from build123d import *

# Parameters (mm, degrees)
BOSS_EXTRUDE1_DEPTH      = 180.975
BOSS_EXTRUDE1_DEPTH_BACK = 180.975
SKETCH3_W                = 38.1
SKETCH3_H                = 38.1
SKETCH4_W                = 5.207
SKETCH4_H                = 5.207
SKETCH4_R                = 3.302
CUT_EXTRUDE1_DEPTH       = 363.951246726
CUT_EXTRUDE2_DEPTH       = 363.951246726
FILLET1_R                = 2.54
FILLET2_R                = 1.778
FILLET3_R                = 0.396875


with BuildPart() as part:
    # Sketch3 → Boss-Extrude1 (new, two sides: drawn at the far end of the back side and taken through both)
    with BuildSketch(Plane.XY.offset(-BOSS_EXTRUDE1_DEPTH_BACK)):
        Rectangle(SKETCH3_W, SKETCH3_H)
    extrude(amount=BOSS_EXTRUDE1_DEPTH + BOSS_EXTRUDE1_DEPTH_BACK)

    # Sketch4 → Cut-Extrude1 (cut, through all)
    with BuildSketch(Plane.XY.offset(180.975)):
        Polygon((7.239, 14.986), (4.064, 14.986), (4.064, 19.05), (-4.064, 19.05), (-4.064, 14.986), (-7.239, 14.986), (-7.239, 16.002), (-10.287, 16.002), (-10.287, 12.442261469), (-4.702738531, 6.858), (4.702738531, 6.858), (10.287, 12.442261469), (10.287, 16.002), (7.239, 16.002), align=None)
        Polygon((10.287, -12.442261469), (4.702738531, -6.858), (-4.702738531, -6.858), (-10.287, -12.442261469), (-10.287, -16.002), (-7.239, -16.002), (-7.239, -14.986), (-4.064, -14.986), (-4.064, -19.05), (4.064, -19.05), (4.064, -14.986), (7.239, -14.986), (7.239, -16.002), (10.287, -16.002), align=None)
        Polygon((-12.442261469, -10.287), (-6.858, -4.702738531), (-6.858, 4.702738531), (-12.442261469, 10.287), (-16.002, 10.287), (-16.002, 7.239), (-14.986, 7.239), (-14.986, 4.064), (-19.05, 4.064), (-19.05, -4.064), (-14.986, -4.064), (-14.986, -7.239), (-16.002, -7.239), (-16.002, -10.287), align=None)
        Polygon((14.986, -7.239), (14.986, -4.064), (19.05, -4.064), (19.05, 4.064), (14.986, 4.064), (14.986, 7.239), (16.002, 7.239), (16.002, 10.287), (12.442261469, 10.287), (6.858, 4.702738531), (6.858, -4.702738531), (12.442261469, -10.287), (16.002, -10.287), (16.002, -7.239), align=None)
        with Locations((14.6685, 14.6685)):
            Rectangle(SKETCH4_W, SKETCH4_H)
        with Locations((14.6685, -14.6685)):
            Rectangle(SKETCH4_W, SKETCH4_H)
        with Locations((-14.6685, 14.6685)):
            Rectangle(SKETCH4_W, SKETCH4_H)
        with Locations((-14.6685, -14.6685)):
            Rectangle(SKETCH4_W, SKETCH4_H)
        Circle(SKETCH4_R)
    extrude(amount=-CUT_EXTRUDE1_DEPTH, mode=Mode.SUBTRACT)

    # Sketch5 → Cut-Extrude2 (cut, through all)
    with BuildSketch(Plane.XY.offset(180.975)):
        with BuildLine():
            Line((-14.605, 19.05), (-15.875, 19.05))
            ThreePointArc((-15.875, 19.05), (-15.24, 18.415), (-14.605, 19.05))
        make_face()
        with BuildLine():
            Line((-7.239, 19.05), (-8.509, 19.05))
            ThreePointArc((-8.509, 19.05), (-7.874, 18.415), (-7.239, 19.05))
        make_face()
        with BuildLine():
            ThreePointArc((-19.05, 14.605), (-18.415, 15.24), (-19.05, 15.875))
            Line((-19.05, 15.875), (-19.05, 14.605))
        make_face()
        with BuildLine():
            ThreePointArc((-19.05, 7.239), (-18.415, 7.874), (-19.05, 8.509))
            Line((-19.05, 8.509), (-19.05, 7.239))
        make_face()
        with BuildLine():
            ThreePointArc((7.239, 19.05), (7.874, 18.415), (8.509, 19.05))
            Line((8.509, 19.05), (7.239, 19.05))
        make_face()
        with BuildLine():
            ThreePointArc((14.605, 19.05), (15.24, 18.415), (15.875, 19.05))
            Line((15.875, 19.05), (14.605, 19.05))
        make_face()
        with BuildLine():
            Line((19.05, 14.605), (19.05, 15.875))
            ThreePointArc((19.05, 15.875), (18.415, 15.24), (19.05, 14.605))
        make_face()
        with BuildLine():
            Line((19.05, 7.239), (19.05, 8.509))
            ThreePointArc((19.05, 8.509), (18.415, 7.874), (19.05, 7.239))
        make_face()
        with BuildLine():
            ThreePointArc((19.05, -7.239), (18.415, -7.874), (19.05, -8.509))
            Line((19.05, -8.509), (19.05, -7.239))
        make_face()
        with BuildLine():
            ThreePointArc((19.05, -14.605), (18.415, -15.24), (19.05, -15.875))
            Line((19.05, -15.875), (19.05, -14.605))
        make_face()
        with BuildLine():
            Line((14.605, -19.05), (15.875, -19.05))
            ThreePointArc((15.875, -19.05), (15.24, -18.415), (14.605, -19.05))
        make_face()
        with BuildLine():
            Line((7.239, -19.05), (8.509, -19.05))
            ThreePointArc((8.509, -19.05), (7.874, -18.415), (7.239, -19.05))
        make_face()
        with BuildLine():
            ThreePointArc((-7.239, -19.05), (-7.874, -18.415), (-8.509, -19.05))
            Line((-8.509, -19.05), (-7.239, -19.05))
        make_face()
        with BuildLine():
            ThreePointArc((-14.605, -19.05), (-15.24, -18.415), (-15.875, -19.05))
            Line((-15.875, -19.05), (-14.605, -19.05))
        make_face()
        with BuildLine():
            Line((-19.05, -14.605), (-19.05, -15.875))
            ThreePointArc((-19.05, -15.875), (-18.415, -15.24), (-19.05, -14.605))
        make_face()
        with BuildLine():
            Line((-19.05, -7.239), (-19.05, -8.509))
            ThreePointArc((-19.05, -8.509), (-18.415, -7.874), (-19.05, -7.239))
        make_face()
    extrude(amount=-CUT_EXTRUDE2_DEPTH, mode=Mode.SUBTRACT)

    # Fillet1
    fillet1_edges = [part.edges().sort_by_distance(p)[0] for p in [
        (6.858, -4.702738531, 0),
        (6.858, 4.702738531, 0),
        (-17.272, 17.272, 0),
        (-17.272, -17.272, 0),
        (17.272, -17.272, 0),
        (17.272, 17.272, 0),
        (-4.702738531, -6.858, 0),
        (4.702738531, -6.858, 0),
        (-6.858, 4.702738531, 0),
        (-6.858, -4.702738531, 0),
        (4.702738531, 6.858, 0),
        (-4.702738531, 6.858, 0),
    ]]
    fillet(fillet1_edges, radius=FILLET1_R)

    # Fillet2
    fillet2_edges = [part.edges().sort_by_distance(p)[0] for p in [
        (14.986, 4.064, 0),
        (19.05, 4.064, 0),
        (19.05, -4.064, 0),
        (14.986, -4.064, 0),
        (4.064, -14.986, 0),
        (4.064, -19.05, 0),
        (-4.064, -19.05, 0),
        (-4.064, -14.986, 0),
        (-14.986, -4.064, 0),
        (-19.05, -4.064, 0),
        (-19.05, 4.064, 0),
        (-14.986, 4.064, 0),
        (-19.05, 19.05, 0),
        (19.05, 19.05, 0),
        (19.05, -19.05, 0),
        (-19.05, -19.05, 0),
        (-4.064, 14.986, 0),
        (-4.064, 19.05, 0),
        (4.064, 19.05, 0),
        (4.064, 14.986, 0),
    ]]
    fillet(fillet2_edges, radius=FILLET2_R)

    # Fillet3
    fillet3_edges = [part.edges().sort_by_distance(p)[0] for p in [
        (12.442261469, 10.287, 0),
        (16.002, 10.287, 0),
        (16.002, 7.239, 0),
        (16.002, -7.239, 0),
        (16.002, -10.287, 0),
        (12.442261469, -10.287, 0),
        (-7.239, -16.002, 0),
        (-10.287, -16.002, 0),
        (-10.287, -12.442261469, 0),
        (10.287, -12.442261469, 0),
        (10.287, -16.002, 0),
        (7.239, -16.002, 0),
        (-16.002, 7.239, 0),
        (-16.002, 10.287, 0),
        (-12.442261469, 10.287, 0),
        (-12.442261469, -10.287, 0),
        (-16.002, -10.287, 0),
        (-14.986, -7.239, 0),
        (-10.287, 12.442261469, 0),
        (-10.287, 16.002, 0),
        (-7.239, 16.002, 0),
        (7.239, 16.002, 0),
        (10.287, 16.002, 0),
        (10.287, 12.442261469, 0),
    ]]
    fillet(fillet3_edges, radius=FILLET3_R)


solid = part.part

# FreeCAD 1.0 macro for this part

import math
import FreeCAD as App
import Part
import Sketcher
from FreeCAD import Vector
Q = App.Units.Quantity


def edges_at(feature, points):
    """Names of the edges that pass closest to the given points."""
    edges = feature.Shape.Edges
    near = lambda p: min(range(len(edges)), key=lambda i: edges[i].distToShape(Part.Vertex(*p))[0])
    return sorted({f"Edge{near(p) + 1}" for p in points})


def add_polygon(sketch, points):
    """Adds a closed chain of lines whose ends are joined by coincident constraints."""
    first, n = sketch.GeometryCount, len(points)
    for a, b in zip(points, points[1:] + points[:1]):
        sketch.addGeometry(Part.LineSegment(App.Vector(*a, 0), App.Vector(*b, 0)), False)
    for i in range(n):
        sketch.addConstraint(Sketcher.Constraint("Coincident", first + i, 2, first + (i + 1) % n, 1))

doc = App.newDocument("Part")
body = doc.addObject("PartDesign::Body", "Body")

sketch1 = doc.addObject("Sketcher::SketchObject", "Sketch")
body.addObject(sketch1)
sketch1.AttachmentSupport = (doc.XY_Plane, [""])
sketch1.MapMode = "FlatFace"
add_polygon(sketch1, [(-19, 19), (-19, -19), (19, -19), (19, 19)])
sketch1.addConstraint(Sketcher.Constraint("Vertical", 0))
sketch1.addConstraint(Sketcher.Constraint("Horizontal", 1))
sketch1.addConstraint(Sketcher.Constraint("Vertical", 2))
sketch1.addConstraint(Sketcher.Constraint("Horizontal", 3))
sketch1.addConstraint(Sketcher.Constraint("Symmetric", 0, 2, 2, 2, -1, 1))
sketch1.addConstraint(Sketcher.Constraint("Equal", 3, 0))
sketch1.addConstraint(Sketcher.Constraint("DistanceX", 1, 1, 1, 2, Q("1.5 in")))
pad1 = doc.addObject("PartDesign::Pad", "Pad")
body.addObject(pad1)
pad1.Profile = sketch1
pad1.Type = "TwoLengths"
pad1.Length = Q("7.125 in")
pad1.Length2 = Q("7.125 in")

sketch2 = doc.addObject("Sketcher::SketchObject", "Sketch001")
body.addObject(sketch2)
sketch2.AttachmentSupport = (doc.XY_Plane, [""])
sketch2.MapMode = "FlatFace"
sketch2.AttachmentOffset = App.Placement(Vector(0, 0, 7.125 * 25.4), App.Rotation())
add_polygon(sketch2, [(7.2, 15), (4.1, 15), (4.1, 19.1), (-4.1, 19.1), (-4.1, 15), (-7.2, 15), (-7.2, 16), (-10.3, 16), (-10.3, 12.4), (-4.7, 6.9), (4.7, 6.9), (10.3, 12.4), (10.3, 16), (7.2, 16)])
add_polygon(sketch2, [(10.3, -12.4), (4.7, -6.9), (-4.7, -6.9), (-10.3, -12.4), (-10.3, -16), (-7.2, -16), (-7.2, -15), (-4.1, -15), (-4.1, -19.1), (4.1, -19.1), (4.1, -15), (7.2, -15), (7.2, -16), (10.3, -16)])
add_polygon(sketch2, [(-12.4, -10.3), (-6.9, -4.7), (-6.9, 4.7), (-12.4, 10.3), (-16, 10.3), (-16, 7.2), (-15, 7.2), (-15, 4.1), (-19.1, 4.1), (-19.1, -4.1), (-15, -4.1), (-15, -7.2), (-16, -7.2), (-16, -10.3)])
add_polygon(sketch2, [(15, -7.2), (15, -4.1), (19.1, -4.1), (19.1, 4.1), (15, 4.1), (15, 7.2), (16, 7.2), (16, 10.3), (12.4, 10.3), (6.9, 4.7), (6.9, -4.7), (12.4, -10.3), (16, -10.3), (16, -7.2)])
add_polygon(sketch2, [(12.1, 17.3), (12.1, 12.1), (17.3, 12.1), (17.3, 17.3)])
add_polygon(sketch2, [(12.1, -12.1), (12.1, -17.3), (17.3, -17.3), (17.3, -12.1)])
add_polygon(sketch2, [(-17.3, 17.3), (-17.3, 12.1), (-12.1, 12.1), (-12.1, 17.3)])
add_polygon(sketch2, [(-17.3, -12.1), (-17.3, -17.3), (-12.1, -17.3), (-12.1, -12.1)])
sketch2.addGeometry(Part.Circle(Vector(0, 0, 0), Vector(0, 0, 1), 3.3), False)
sketch2.addConstraint(Sketcher.Constraint("Horizontal", 0))
sketch2.addConstraint(Sketcher.Constraint("Vertical", 1))
sketch2.addConstraint(Sketcher.Constraint("Horizontal", 2))
sketch2.addConstraint(Sketcher.Constraint("Vertical", 3))
sketch2.addConstraint(Sketcher.Constraint("Horizontal", 4))
sketch2.addConstraint(Sketcher.Constraint("Vertical", 5))
sketch2.addConstraint(Sketcher.Constraint("Horizontal", 6))
sketch2.addConstraint(Sketcher.Constraint("Vertical", 7))
sketch2.addConstraint(Sketcher.Constraint("Horizontal", 9))
sketch2.addConstraint(Sketcher.Constraint("Vertical", 11))
sketch2.addConstraint(Sketcher.Constraint("Horizontal", 12))
sketch2.addConstraint(Sketcher.Constraint("Vertical", 13))
sketch2.addConstraint(Sketcher.Constraint("Horizontal", 15))
sketch2.addConstraint(Sketcher.Constraint("Vertical", 17))
sketch2.addConstraint(Sketcher.Constraint("Horizontal", 18))
sketch2.addConstraint(Sketcher.Constraint("Vertical", 19))
sketch2.addConstraint(Sketcher.Constraint("Horizontal", 20))
sketch2.addConstraint(Sketcher.Constraint("Vertical", 21))
sketch2.addConstraint(Sketcher.Constraint("Horizontal", 22))
sketch2.addConstraint(Sketcher.Constraint("Vertical", 23))
sketch2.addConstraint(Sketcher.Constraint("Horizontal", 24))
sketch2.addConstraint(Sketcher.Constraint("Vertical", 25))
sketch2.addConstraint(Sketcher.Constraint("Horizontal", 26))
sketch2.addConstraint(Sketcher.Constraint("Vertical", 27))
sketch2.addConstraint(Sketcher.Constraint("Vertical", 29))
sketch2.addConstraint(Sketcher.Constraint("Horizontal", 31))
sketch2.addConstraint(Sketcher.Constraint("Vertical", 32))
sketch2.addConstraint(Sketcher.Constraint("Horizontal", 33))
sketch2.addConstraint(Sketcher.Constraint("Vertical", 34))
sketch2.addConstraint(Sketcher.Constraint("Horizontal", 35))
sketch2.addConstraint(Sketcher.Constraint("Vertical", 36))
sketch2.addConstraint(Sketcher.Constraint("Horizontal", 37))
sketch2.addConstraint(Sketcher.Constraint("Vertical", 38))
sketch2.addConstraint(Sketcher.Constraint("Horizontal", 39))
sketch2.addConstraint(Sketcher.Constraint("Vertical", 40))
sketch2.addConstraint(Sketcher.Constraint("Horizontal", 41))
sketch2.addConstraint(Sketcher.Constraint("Vertical", 42))
sketch2.addConstraint(Sketcher.Constraint("Horizontal", 43))
sketch2.addConstraint(Sketcher.Constraint("Vertical", 44))
sketch2.addConstraint(Sketcher.Constraint("Horizontal", 45))
sketch2.addConstraint(Sketcher.Constraint("Vertical", 46))
sketch2.addConstraint(Sketcher.Constraint("Horizontal", 47))
sketch2.addConstraint(Sketcher.Constraint("Vertical", 48))
sketch2.addConstraint(Sketcher.Constraint("Horizontal", 49))
sketch2.addConstraint(Sketcher.Constraint("Vertical", 51))
sketch2.addConstraint(Sketcher.Constraint("Horizontal", 53))
sketch2.addConstraint(Sketcher.Constraint("Vertical", 54))
sketch2.addConstraint(Sketcher.Constraint("Horizontal", 55))
sketch2.addConstraint(Sketcher.Constraint("Vertical", 56))
sketch2.addConstraint(Sketcher.Constraint("Horizontal", 57))
sketch2.addConstraint(Sketcher.Constraint("Vertical", 58))
sketch2.addConstraint(Sketcher.Constraint("Horizontal", 59))
sketch2.addConstraint(Sketcher.Constraint("Vertical", 60))
sketch2.addConstraint(Sketcher.Constraint("Horizontal", 61))
sketch2.addConstraint(Sketcher.Constraint("Vertical", 62))
sketch2.addConstraint(Sketcher.Constraint("Horizontal", 63))
sketch2.addConstraint(Sketcher.Constraint("Vertical", 64))
sketch2.addConstraint(Sketcher.Constraint("Horizontal", 65))
sketch2.addConstraint(Sketcher.Constraint("Vertical", 66))
sketch2.addConstraint(Sketcher.Constraint("Horizontal", 67))
sketch2.addConstraint(Sketcher.Constraint("Vertical", 68))
sketch2.addConstraint(Sketcher.Constraint("Horizontal", 69))
sketch2.addConstraint(Sketcher.Constraint("Vertical", 70))
sketch2.addConstraint(Sketcher.Constraint("Horizontal", 71))
sketch2.addConstraint(Sketcher.Constraint("Coincident", 72, 3, -1, 1))
sketch2.addConstraint(Sketcher.Constraint("Symmetric", 8, 2, 14, 2, -1, 1))
sketch2.addConstraint(Sketcher.Constraint("Symmetric", 10, 2, 16, 2, -1, 1))
sketch2.addConstraint(Sketcher.Constraint("Symmetric", 12, 2, 18, 2, -1, 1))
sketch2.addConstraint(Sketcher.Constraint("Symmetric", 0, 2, 20, 2, -1, 1))
sketch2.addConstraint(Sketcher.Constraint("Symmetric", 2, 2, 22, 2, -1, 1))
sketch2.addConstraint(Sketcher.Constraint("Symmetric", 4, 2, 24, 2, -1, 1))
sketch2.addConstraint(Sketcher.Constraint("Symmetric", 6, 2, 26, 2, -1, 1))
sketch2.addConstraint(Sketcher.Constraint("Symmetric", 34, 2, 42, 2, -1, 1))
sketch2.addConstraint(Sketcher.Constraint("Symmetric", 36, 2, 44, 2, -1, 1))
sketch2.addConstraint(Sketcher.Constraint("Symmetric", 38, 2, 46, 2, -1, 1))
sketch2.addConstraint(Sketcher.Constraint("Symmetric", 40, 2, 48, 2, -1, 1))
sketch2.addConstraint(Sketcher.Constraint("Symmetric", 28, 2, 50, 2, -1, 1))
sketch2.addConstraint(Sketcher.Constraint("Symmetric", 30, 2, 52, 2, -1, 1))
sketch2.addConstraint(Sketcher.Constraint("Symmetric", 32, 2, 54, 2, -1, 1))
sketch2.addConstraint(Sketcher.Constraint("Symmetric", 62, 2, 64, 2, -1, 1))
sketch2.addConstraint(Sketcher.Constraint("Symmetric", 60, 2, 66, 2, -1, 1))
sketch2.addConstraint(Sketcher.Constraint("Symmetric", 58, 2, 68, 2, -1, 1))
sketch2.addConstraint(Sketcher.Constraint("Symmetric", 56, 2, 70, 2, -1, 1))
sketch2.addConstraint(Sketcher.Constraint("Symmetric", 0, 2, 3, 2, -2))
sketch2.addConstraint(Sketcher.Constraint("Symmetric", 7, 2, 10, 2, -2))
sketch2.addConstraint(Sketcher.Constraint("Symmetric", 5, 2, 12, 2, -2))
sketch2.addConstraint(Sketcher.Constraint("Symmetric", 37, 2, 42, 2, -2))
sketch2.addConstraint(Sketcher.Constraint("Symmetric", 32, 2, 47, 2, -2))
sketch2.addConstraint(Sketcher.Constraint("Symmetric", 30, 2, 49, 2, -2))
sketch2.addConstraint(Sketcher.Constraint("Symmetric", 57, 2, 64, 2, -2))
sketch2.addConstraint(Sketcher.Constraint("Symmetric", 59, 2, 66, 2, -2))
sketch2.addConstraint(Sketcher.Constraint("Perpendicular", 8, 10))
sketch2.addConstraint(Sketcher.Constraint("Perpendicular", 10, 14))
sketch2.addConstraint(Sketcher.Constraint("Perpendicular", 14, 16))
sketch2.addConstraint(Sketcher.Constraint("Parallel", 16, 28))
sketch2.addConstraint(Sketcher.Constraint("Perpendicular", 28, 30))
sketch2.addConstraint(Sketcher.Constraint("Perpendicular", 30, 50))
sketch2.addConstraint(Sketcher.Constraint("Perpendicular", 50, 52))
sketch2.addConstraint(Sketcher.Constraint("Horizontal", 29, 2, 50, 2))
sketch2.addConstraint(Sketcher.Constraint("Equal", 45, 1))
sketch2.addConstraint(Sketcher.Constraint("Equal", 55, 5))
sketch2.addConstraint(Sketcher.Constraint("Equal", 53, 7))
sketch2.addConstraint(Sketcher.Constraint("Equal", 15, 29))
sketch2.addConstraint(Sketcher.Constraint("Equal", 26, 32))
sketch2.addConstraint(Sketcher.Constraint("Equal", 24, 34))
sketch2.addConstraint(Sketcher.Constraint("Equal", 22, 36))
sketch2.addConstraint(Sketcher.Constraint("Equal", 71, 56))
sketch2.addConstraint(Sketcher.Constraint("Diameter", 72, Q("0.26 in")))
sketch2.addConstraint(Sketcher.Constraint("DistanceX", 2, 2, 2, 1, Q("0.32 in")))
sketch2.addConstraint(Sketcher.Constraint("DistanceX", 6, 2, 6, 1, Q("0.12 in")))
sketch2.addConstraint(Sketcher.Constraint("DistanceX", 33, 1, 33, 2, Q("0.04 in")))
sketch2.addConstraint(Sketcher.Constraint("DistanceX", 35, 2, 35, 1, Q("0.16 in")))
sketch2.addConstraint(Sketcher.Constraint("DistanceX", 0, 2, 0, 1, Q("0.125 in")))
sketch2.addConstraint(Sketcher.Constraint("DistanceX", 57, 1, 57, 2, Q("0.205 in")))
sketch2.addConstraint(Sketcher.Constraint("DistanceY", -1, 1, 0, 2, Q("0.59 in")))
sketch2.addConstraint(Sketcher.Constraint("DistanceY", -1, 1, 8, 2, Q("0.27 in")))
sketch2.addConstraint(Sketcher.Constraint("DistanceX", 28, 2, -1, 1, Q("0.27 in")))
sketch2.addConstraint(Sketcher.Constraint("DistanceX", -1, 1, 57, 2, Q("0.68 in")))
sketch2.addConstraint(Sketcher.Constraint("DistanceY", -1, 1, 58, 2, Q("0.68 in")))
sketch2.addConstraint(Sketcher.Constraint("DistanceX", 31, 2, 31, 1, 3.559739))
pocket1 = doc.addObject("PartDesign::Pocket", "Pocket")
body.addObject(pocket1)
pocket1.Profile = sketch2
pocket1.Type = "ThroughAll"

sketch3 = doc.addObject("Sketcher::SketchObject", "Sketch002")
body.addObject(sketch3)
sketch3.AttachmentSupport = (doc.XY_Plane, [""])
sketch3.MapMode = "FlatFace"
sketch3.AttachmentOffset = App.Placement(Vector(0, 0, 7.125 * 25.4), App.Rotation())
sketch3.addGeometry(Part.LineSegment(Vector(-14.6, 19.1, 0), Vector(-15.9, 19.1, 0)), False)
sketch3.addGeometry(Part.ArcOfCircle(Part.Circle(Vector(-15.2, 19.1, 0), Vector(0, 0, 1), 0.6), math.radians(180), math.radians(360)), False)
sketch3.addGeometry(Part.LineSegment(Vector(-7.2, 19.1, 0), Vector(-8.5, 19.1, 0)), False)
sketch3.addGeometry(Part.ArcOfCircle(Part.Circle(Vector(-7.9, 19.1, 0), Vector(0, 0, 1), 0.6), math.radians(180), math.radians(360)), False)
sketch3.addGeometry(Part.ArcOfCircle(Part.Circle(Vector(-19.1, 15.2, 0), Vector(0, 0, 1), 0.6), math.radians(-90), math.radians(90)), False)
sketch3.addGeometry(Part.LineSegment(Vector(-19.1, 15.9, 0), Vector(-19.1, 14.6, 0)), False)
sketch3.addGeometry(Part.ArcOfCircle(Part.Circle(Vector(-19.1, 7.9, 0), Vector(0, 0, 1), 0.6), math.radians(-90), math.radians(90)), False)
sketch3.addGeometry(Part.LineSegment(Vector(-19.1, 8.5, 0), Vector(-19.1, 7.2, 0)), False)
sketch3.addGeometry(Part.ArcOfCircle(Part.Circle(Vector(7.9, 19.1, 0), Vector(0, 0, 1), 0.6), math.radians(180), math.radians(360)), False)
sketch3.addGeometry(Part.LineSegment(Vector(8.5, 19.1, 0), Vector(7.2, 19.1, 0)), False)
sketch3.addGeometry(Part.ArcOfCircle(Part.Circle(Vector(15.2, 19.1, 0), Vector(0, 0, 1), 0.6), math.radians(180), math.radians(360)), False)
sketch3.addGeometry(Part.LineSegment(Vector(15.9, 19.1, 0), Vector(14.6, 19.1, 0)), False)
sketch3.addGeometry(Part.LineSegment(Vector(19.1, 14.6, 0), Vector(19.1, 15.9, 0)), False)
sketch3.addGeometry(Part.ArcOfCircle(Part.Circle(Vector(19.1, 15.2, 0), Vector(0, 0, 1), 0.6), math.radians(90), math.radians(270)), False)
sketch3.addGeometry(Part.LineSegment(Vector(19.1, 7.2, 0), Vector(19.1, 8.5, 0)), False)
sketch3.addGeometry(Part.ArcOfCircle(Part.Circle(Vector(19.1, 7.9, 0), Vector(0, 0, 1), 0.6), math.radians(90), math.radians(270)), False)
sketch3.addGeometry(Part.ArcOfCircle(Part.Circle(Vector(19.1, -7.9, 0), Vector(0, 0, 1), 0.6), math.radians(90), math.radians(270)), False)
sketch3.addGeometry(Part.LineSegment(Vector(19.1, -8.5, 0), Vector(19.1, -7.2, 0)), False)
sketch3.addGeometry(Part.ArcOfCircle(Part.Circle(Vector(19.1, -15.2, 0), Vector(0, 0, 1), 0.6), math.radians(90), math.radians(270)), False)
sketch3.addGeometry(Part.LineSegment(Vector(19.1, -15.9, 0), Vector(19.1, -14.6, 0)), False)
sketch3.addGeometry(Part.LineSegment(Vector(14.6, -19.1, 0), Vector(15.9, -19.1, 0)), False)
sketch3.addGeometry(Part.ArcOfCircle(Part.Circle(Vector(15.2, -19.1, 0), Vector(0, 0, 1), 0.6), math.radians(0), math.radians(180)), False)
sketch3.addGeometry(Part.LineSegment(Vector(7.2, -19.1, 0), Vector(8.5, -19.1, 0)), False)
sketch3.addGeometry(Part.ArcOfCircle(Part.Circle(Vector(7.9, -19.1, 0), Vector(0, 0, 1), 0.6), math.radians(0), math.radians(180)), False)
sketch3.addGeometry(Part.ArcOfCircle(Part.Circle(Vector(-7.9, -19.1, 0), Vector(0, 0, 1), 0.6), math.radians(0), math.radians(180)), False)
sketch3.addGeometry(Part.LineSegment(Vector(-8.5, -19.1, 0), Vector(-7.2, -19.1, 0)), False)
sketch3.addGeometry(Part.ArcOfCircle(Part.Circle(Vector(-15.2, -19.1, 0), Vector(0, 0, 1), 0.6), math.radians(0), math.radians(180)), False)
sketch3.addGeometry(Part.LineSegment(Vector(-15.9, -19.1, 0), Vector(-14.6, -19.1, 0)), False)
sketch3.addGeometry(Part.LineSegment(Vector(-19.1, -14.6, 0), Vector(-19.1, -15.9, 0)), False)
sketch3.addGeometry(Part.ArcOfCircle(Part.Circle(Vector(-19.1, -15.2, 0), Vector(0, 0, 1), 0.6), math.radians(-90), math.radians(90)), False)
sketch3.addGeometry(Part.LineSegment(Vector(-19.1, -7.2, 0), Vector(-19.1, -8.5, 0)), False)
sketch3.addGeometry(Part.ArcOfCircle(Part.Circle(Vector(-19.1, -7.9, 0), Vector(0, 0, 1), 0.6), math.radians(-90), math.radians(90)), False)
sketch3.addConstraint(Sketcher.Constraint("Coincident", 0, 1, 1, 2))
sketch3.addConstraint(Sketcher.Constraint("Coincident", 1, 1, 0, 2))
sketch3.addConstraint(Sketcher.Constraint("Coincident", 2, 1, 3, 2))
sketch3.addConstraint(Sketcher.Constraint("Coincident", 3, 1, 2, 2))
sketch3.addConstraint(Sketcher.Constraint("Coincident", 4, 1, 5, 2))
sketch3.addConstraint(Sketcher.Constraint("Coincident", 5, 1, 4, 2))
sketch3.addConstraint(Sketcher.Constraint("Coincident", 6, 1, 7, 2))
sketch3.addConstraint(Sketcher.Constraint("Coincident", 7, 1, 6, 2))
sketch3.addConstraint(Sketcher.Constraint("Coincident", 8, 1, 9, 2))
sketch3.addConstraint(Sketcher.Constraint("Coincident", 9, 1, 8, 2))
sketch3.addConstraint(Sketcher.Constraint("Coincident", 10, 1, 11, 2))
sketch3.addConstraint(Sketcher.Constraint("Coincident", 11, 1, 10, 2))
sketch3.addConstraint(Sketcher.Constraint("Coincident", 12, 1, 13, 2))
sketch3.addConstraint(Sketcher.Constraint("Coincident", 13, 1, 12, 2))
sketch3.addConstraint(Sketcher.Constraint("Coincident", 14, 1, 15, 2))
sketch3.addConstraint(Sketcher.Constraint("Coincident", 15, 1, 14, 2))
sketch3.addConstraint(Sketcher.Constraint("Coincident", 16, 1, 17, 2))
sketch3.addConstraint(Sketcher.Constraint("Coincident", 17, 1, 16, 2))
sketch3.addConstraint(Sketcher.Constraint("Coincident", 18, 1, 19, 2))
sketch3.addConstraint(Sketcher.Constraint("Coincident", 19, 1, 18, 2))
sketch3.addConstraint(Sketcher.Constraint("Coincident", 20, 1, 21, 2))
sketch3.addConstraint(Sketcher.Constraint("Coincident", 21, 1, 20, 2))
sketch3.addConstraint(Sketcher.Constraint("Coincident", 22, 1, 23, 2))
sketch3.addConstraint(Sketcher.Constraint("Coincident", 23, 1, 22, 2))
sketch3.addConstraint(Sketcher.Constraint("Coincident", 24, 1, 25, 2))
sketch3.addConstraint(Sketcher.Constraint("Coincident", 25, 1, 24, 2))
sketch3.addConstraint(Sketcher.Constraint("Coincident", 26, 1, 27, 2))
sketch3.addConstraint(Sketcher.Constraint("Coincident", 27, 1, 26, 2))
sketch3.addConstraint(Sketcher.Constraint("Coincident", 28, 1, 29, 2))
sketch3.addConstraint(Sketcher.Constraint("Coincident", 29, 1, 28, 2))
sketch3.addConstraint(Sketcher.Constraint("Coincident", 30, 1, 31, 2))
sketch3.addConstraint(Sketcher.Constraint("Coincident", 31, 1, 30, 2))
sketch3.addConstraint(Sketcher.Constraint("Horizontal", 0))
sketch3.addConstraint(Sketcher.Constraint("Horizontal", 2))
sketch3.addConstraint(Sketcher.Constraint("Vertical", 5))
sketch3.addConstraint(Sketcher.Constraint("Vertical", 7))
sketch3.addConstraint(Sketcher.Constraint("Horizontal", 9))
sketch3.addConstraint(Sketcher.Constraint("Horizontal", 11))
sketch3.addConstraint(Sketcher.Constraint("Vertical", 12))
sketch3.addConstraint(Sketcher.Constraint("Vertical", 14))
sketch3.addConstraint(Sketcher.Constraint("Vertical", 17))
sketch3.addConstraint(Sketcher.Constraint("Vertical", 19))
sketch3.addConstraint(Sketcher.Constraint("Horizontal", 20))
sketch3.addConstraint(Sketcher.Constraint("Horizontal", 22))
sketch3.addConstraint(Sketcher.Constraint("Horizontal", 25))
sketch3.addConstraint(Sketcher.Constraint("Horizontal", 27))
sketch3.addConstraint(Sketcher.Constraint("Vertical", 28))
sketch3.addConstraint(Sketcher.Constraint("Vertical", 30))
sketch3.addConstraint(Sketcher.Constraint("Equal", 1, 3))
sketch3.addConstraint(Sketcher.Constraint("Equal", 3, 4))
sketch3.addConstraint(Sketcher.Constraint("Equal", 4, 6))
sketch3.addConstraint(Sketcher.Constraint("Equal", 6, 8))
sketch3.addConstraint(Sketcher.Constraint("Equal", 8, 10))
sketch3.addConstraint(Sketcher.Constraint("Equal", 10, 13))
sketch3.addConstraint(Sketcher.Constraint("Equal", 13, 15))
sketch3.addConstraint(Sketcher.Constraint("Equal", 15, 16))
sketch3.addConstraint(Sketcher.Constraint("Equal", 16, 18))
sketch3.addConstraint(Sketcher.Constraint("Equal", 18, 21))
sketch3.addConstraint(Sketcher.Constraint("Equal", 21, 23))
sketch3.addConstraint(Sketcher.Constraint("Equal", 23, 24))
sketch3.addConstraint(Sketcher.Constraint("Equal", 24, 26))
sketch3.addConstraint(Sketcher.Constraint("Equal", 26, 29))
sketch3.addConstraint(Sketcher.Constraint("Equal", 29, 31))
sketch3.addConstraint(Sketcher.Constraint("Symmetric", 6, 3, 16, 3, -1, 1))
sketch3.addConstraint(Sketcher.Constraint("Symmetric", 4, 3, 18, 3, -1, 1))
sketch3.addConstraint(Sketcher.Constraint("Symmetric", 1, 3, 21, 3, -1, 1))
sketch3.addConstraint(Sketcher.Constraint("Symmetric", 3, 3, 23, 3, -1, 1))
sketch3.addConstraint(Sketcher.Constraint("Symmetric", 8, 3, 24, 3, -1, 1))
sketch3.addConstraint(Sketcher.Constraint("Symmetric", 10, 3, 26, 3, -1, 1))
sketch3.addConstraint(Sketcher.Constraint("Symmetric", 13, 3, 29, 3, -1, 1))
sketch3.addConstraint(Sketcher.Constraint("Symmetric", 15, 3, 31, 3, -1, 1))
sketch3.addConstraint(Sketcher.Constraint("Symmetric", 3, 3, 8, 3, -2))
sketch3.addConstraint(Sketcher.Constraint("Symmetric", 1, 3, 10, 3, -2))
sketch3.addConstraint(Sketcher.Constraint("Symmetric", 4, 3, 13, 3, -2))
sketch3.addConstraint(Sketcher.Constraint("Symmetric", 6, 3, 15, 3, -2))
sketch3.addConstraint(Sketcher.Constraint("Horizontal", 1, 3, 3, 3))
sketch3.addConstraint(Sketcher.Constraint("Horizontal", 10, 3, 0, 1))
sketch3.addConstraint(Sketcher.Constraint("Horizontal", 1, 1, 2, 1))
sketch3.addConstraint(Sketcher.Constraint("Horizontal", 3, 1, 8, 1))
sketch3.addConstraint(Sketcher.Constraint("Horizontal", 9, 1, 10, 1))
sketch3.addConstraint(Sketcher.Constraint("Horizontal", 26, 3, 20, 1))
sketch3.addConstraint(Sketcher.Constraint("Horizontal", 21, 1, 22, 1))
sketch3.addConstraint(Sketcher.Constraint("Horizontal", 23, 1, 24, 1))
sketch3.addConstraint(Sketcher.Constraint("Horizontal", 25, 1, 26, 1))
sketch3.addConstraint(Sketcher.Constraint("Vertical", 4, 3, 6, 3))
sketch3.addConstraint(Sketcher.Constraint("Vertical", 31, 3, 4, 1))
sketch3.addConstraint(Sketcher.Constraint("Vertical", 5, 1, 6, 1))
sketch3.addConstraint(Sketcher.Constraint("Vertical", 18, 3, 12, 1))
sketch3.addConstraint(Sketcher.Constraint("Vertical", 13, 1, 14, 1))
sketch3.addConstraint(Sketcher.Constraint("Vertical", 15, 1, 16, 1))
sketch3.addConstraint(Sketcher.Constraint("Vertical", 17, 1, 18, 1))
sketch3.addConstraint(Sketcher.Constraint("Vertical", 7, 1, 28, 1))
sketch3.addConstraint(Sketcher.Constraint("Vertical", 29, 1, 30, 1))
sketch3.addConstraint(Sketcher.Constraint("Radius", 1, Q("0.025 in")))
sketch3.addConstraint(Sketcher.Constraint("DistanceX", 1, 3, -1, 1, Q("0.6 in")))
sketch3.addConstraint(Sketcher.Constraint("DistanceY", -1, 1, 4, 3, Q("0.6 in")))
sketch3.addConstraint(Sketcher.Constraint("DistanceX", 4, 3, 13, 3, Q("1.5 in")))
sketch3.addConstraint(Sketcher.Constraint("DistanceY", 21, 3, 10, 3, Q("1.5 in")))
sketch3.addConstraint(Sketcher.Constraint("DistanceX", 3, 3, -1, 1, Q("0.31 in")))
sketch3.addConstraint(Sketcher.Constraint("DistanceY", -1, 1, 6, 3, Q("0.31 in")))
pocket2 = doc.addObject("PartDesign::Pocket", "Pocket001")
body.addObject(pocket2)
pocket2.Profile = sketch3
pocket2.Type = "ThroughAll"
doc.recompute()

fillet = doc.addObject("PartDesign::Fillet", "Fillet")
body.addObject(fillet)
fillet.Base = (pocket2, edges_at(pocket2, [
    (6.858, -4.703, 0),
    (6.858, 4.703, 0),
    (-17.272, 17.272, 0),
    (-17.272, -17.272, 0),
    (17.272, -17.272, 0),
    (17.272, 17.272, 0),
    (-4.703, -6.858, 0),
    (4.703, -6.858, 0),
    (-6.858, 4.703, 0),
    (-6.858, -4.703, 0),
    (4.703, 6.858, 0),
    (-4.703, 6.858, 0),
]))
fillet.Radius = Q("0.1 in")
doc.recompute()

fillet2 = doc.addObject("PartDesign::Fillet", "Fillet001")
body.addObject(fillet2)
fillet2.Base = (fillet, edges_at(fillet, [
    (14.986, 4.064, 0),
    (19.05, 4.064, 0),
    (19.05, -4.064, 0),
    (14.986, -4.064, 0),
    (4.064, -14.986, 0),
    (4.064, -19.05, 0),
    (-4.064, -19.05, 0),
    (-4.064, -14.986, 0),
    (-14.986, -4.064, 0),
    (-19.05, -4.064, 0),
    (-19.05, 4.064, 0),
    (-14.986, 4.064, 0),
    (-19.05, 19.05, 0),
    (19.05, 19.05, 0),
    (19.05, -19.05, 0),
    (-19.05, -19.05, 0),
    (-4.064, 14.986, 0),
    (-4.064, 19.05, 0),
    (4.064, 19.05, 0),
    (4.064, 14.986, 0),
]))
fillet2.Radius = Q("0.07 in")
doc.recompute()

fillet3 = doc.addObject("PartDesign::Fillet", "Fillet002")
body.addObject(fillet3)
fillet3.Base = (fillet2, edges_at(fillet2, [
    (12.442, 10.287, 0),
    (16.002, 10.287, 0),
    (16.002, 7.239, 0),
    (16.002, -7.239, 0),
    (16.002, -10.287, 0),
    (12.442, -10.287, 0),
    (-7.239, -16.002, 0),
    (-10.287, -16.002, 0),
    (-10.287, -12.442, 0),
    (10.287, -12.442, 0),
    (10.287, -16.002, 0),
    (7.239, -16.002, 0),
    (-16.002, 7.239, 0),
    (-16.002, 10.287, 0),
    (-12.442, 10.287, 0),
    (-12.442, -10.287, 0),
    (-16.002, -10.287, 0),
    (-14.986, -7.239, 0),
    (-10.287, 12.442, 0),
    (-10.287, 16.002, 0),
    (-7.239, 16.002, 0),
    (7.239, 16.002, 0),
    (10.287, 16.002, 0),
    (10.287, 12.442, 0),
]))
fillet3.Radius = Q("0.015625 in")

doc.recompute()
